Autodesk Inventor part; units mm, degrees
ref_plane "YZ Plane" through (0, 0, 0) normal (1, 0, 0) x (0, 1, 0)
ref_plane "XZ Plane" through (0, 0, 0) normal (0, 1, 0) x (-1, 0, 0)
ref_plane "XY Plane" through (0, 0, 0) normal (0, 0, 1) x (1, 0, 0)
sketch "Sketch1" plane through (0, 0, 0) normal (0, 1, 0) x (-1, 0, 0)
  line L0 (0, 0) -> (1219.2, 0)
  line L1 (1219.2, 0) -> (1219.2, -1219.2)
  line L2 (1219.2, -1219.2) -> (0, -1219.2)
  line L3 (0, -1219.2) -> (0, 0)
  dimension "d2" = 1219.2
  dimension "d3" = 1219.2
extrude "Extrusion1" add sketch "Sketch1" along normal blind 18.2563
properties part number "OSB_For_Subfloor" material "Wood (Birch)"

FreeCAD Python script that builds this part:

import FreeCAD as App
import Part
import Sketcher
from FreeCAD import Vector
Q = App.Units.Quantity


def add_polygon(sketch, points):
    """Adds a closed chain of lines whose ends are joined by coincident constraints."""
    first, n = sketch.GeometryCount, len(points)
    for a, b in zip(points, points[1:] + points[:1]):
        sketch.addGeometry(Part.LineSegment(App.Vector(*a, 0), App.Vector(*b, 0)), False)
    for i in range(n):
        sketch.addConstraint(Sketcher.Constraint("Coincident", first + i, 2, first + (i + 1) % n, 1))

doc = App.newDocument("Part")
body = doc.addObject("PartDesign::Body", "Body")

sketch1 = doc.addObject("Sketcher::SketchObject", "Sketch")
body.addObject(sketch1)
sketch1.AttachmentSupport = (doc.XZ_Plane, [""])
sketch1.MapMode = "FlatFace"
add_polygon(sketch1, [(-1219.2, 0), (0, 0), (0, -1219.2), (-1219.2, -1219.2)])
sketch1.addConstraint([
    Sketcher.Constraint("Horizontal", 0),
    Sketcher.Constraint("Vertical", 1),
    Sketcher.Constraint("Horizontal", 2),
    Sketcher.Constraint("Vertical", 3),
    Sketcher.Constraint("Coincident", 0, 2, -1, 1),
    Sketcher.Constraint("Equal", 2, 1),
    Sketcher.Constraint("DistanceX", 0, 1, 0, 2, Q("48 in")),
])
pad1 = doc.addObject("PartDesign::Pad", "Pad")
body.addObject(pad1)
pad1.Profile = sketch1
pad1.Length = Q("0.718752 in")
pad1.Reversed = True

doc.recompute()
